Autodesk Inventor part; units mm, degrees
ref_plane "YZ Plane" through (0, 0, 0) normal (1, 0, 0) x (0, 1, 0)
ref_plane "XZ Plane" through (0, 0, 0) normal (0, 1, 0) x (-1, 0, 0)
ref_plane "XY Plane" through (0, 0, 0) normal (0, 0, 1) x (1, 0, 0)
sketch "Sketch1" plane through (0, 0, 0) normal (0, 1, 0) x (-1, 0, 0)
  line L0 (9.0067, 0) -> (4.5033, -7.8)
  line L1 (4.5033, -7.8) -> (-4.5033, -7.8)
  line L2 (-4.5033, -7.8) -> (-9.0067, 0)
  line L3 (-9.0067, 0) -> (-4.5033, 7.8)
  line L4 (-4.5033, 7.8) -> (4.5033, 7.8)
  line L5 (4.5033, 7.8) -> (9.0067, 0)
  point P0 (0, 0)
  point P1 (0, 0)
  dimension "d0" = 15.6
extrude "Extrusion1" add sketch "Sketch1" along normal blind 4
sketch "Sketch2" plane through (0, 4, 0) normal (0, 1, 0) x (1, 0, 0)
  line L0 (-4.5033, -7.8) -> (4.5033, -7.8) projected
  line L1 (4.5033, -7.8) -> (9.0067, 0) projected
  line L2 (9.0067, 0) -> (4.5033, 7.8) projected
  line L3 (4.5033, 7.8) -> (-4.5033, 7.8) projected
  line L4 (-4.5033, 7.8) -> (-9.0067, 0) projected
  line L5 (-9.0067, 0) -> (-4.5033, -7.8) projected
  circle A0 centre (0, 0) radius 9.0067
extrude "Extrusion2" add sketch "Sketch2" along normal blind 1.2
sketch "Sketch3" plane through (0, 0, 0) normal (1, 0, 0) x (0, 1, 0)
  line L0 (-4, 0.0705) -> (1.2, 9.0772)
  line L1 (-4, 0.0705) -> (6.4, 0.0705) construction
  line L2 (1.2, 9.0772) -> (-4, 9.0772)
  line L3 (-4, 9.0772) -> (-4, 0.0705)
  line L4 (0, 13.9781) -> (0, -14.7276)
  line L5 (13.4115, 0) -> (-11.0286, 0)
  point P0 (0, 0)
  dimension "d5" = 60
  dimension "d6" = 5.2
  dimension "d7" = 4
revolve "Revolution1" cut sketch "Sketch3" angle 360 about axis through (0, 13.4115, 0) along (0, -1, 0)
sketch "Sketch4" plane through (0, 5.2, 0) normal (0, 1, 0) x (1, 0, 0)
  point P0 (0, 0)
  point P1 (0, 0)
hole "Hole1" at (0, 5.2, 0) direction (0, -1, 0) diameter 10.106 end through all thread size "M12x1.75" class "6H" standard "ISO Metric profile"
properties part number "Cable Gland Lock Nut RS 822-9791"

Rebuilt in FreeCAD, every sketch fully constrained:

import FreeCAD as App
import Part
import Sketcher
Q = App.Units.Quantity


def add_polygon(sketch, points):
    """Adds a closed chain of lines whose ends are joined by coincident constraints."""
    first, n = sketch.GeometryCount, len(points)
    for a, b in zip(points, points[1:] + points[:1]):
        sketch.addGeometry(Part.LineSegment(App.Vector(*a, 0), App.Vector(*b, 0)), False)
    for i in range(n):
        sketch.addConstraint(Sketcher.Constraint("Coincident", first + i, 2, first + (i + 1) % n, 1))

doc = App.newDocument("Part")
body = doc.addObject("PartDesign::Body", "Body")

# Sketch on XZ plane
sketch1 = body.newObject("Sketcher::SketchObject", "Sketch")
sketch1.AttachmentSupport = (doc.getObject("XZ_Plane"), [""])
sketch1.MapMode = "FlatFace"
add_polygon(sketch1, [(-4.5033, -7.8), (-9.0067, 0), (-4.5033, 7.8), (4.5033, 7.8), (9.0067, 0), (4.5033, -7.8)])  # lines 0-5
sketch1.addConstraint([
    Sketcher.Constraint("Horizontal", 2),
    Sketcher.Constraint("Horizontal", 5),
    Sketcher.Constraint("Symmetric", 0, 2, 3, 2, -1, 1),
    Sketcher.Constraint("Symmetric", 1, 2, 4, 2, -1, 1),
    Sketcher.Constraint("PointOnObject", 0, 2, -1),
    Sketcher.Constraint("Parallel", 0, 3),
    Sketcher.Constraint("Vertical", 2, 2, 4, 2),
    Sketcher.Constraint("DistanceY", 4, 2, 2, 2, 15.6),
    Sketcher.Constraint("Angle", 0, Q("120.0004 deg")),
    Sketcher.Constraint("DistanceX", 0, 2, 2, 2, 13.51),
])
pad1 = body.newObject("PartDesign::Pad", "Pad")
pad1.Profile = sketch1
pad1.Length = 4
pad1.Reversed = True

# Sketch on XZ plane
sketch2 = body.newObject("Sketcher::SketchObject", "Sketch001")
sketch2.AttachmentSupport = (doc.getObject("XZ_Plane"), [""])
sketch2.MapMode = "FlatFace"
sketch2.AttachmentOffset = App.Placement(App.Vector(0, 0, -4), App.Rotation())
sketch2.addGeometry(Part.Circle(App.Vector(0, 0, 0), App.Vector(0, 0, 1), 9.0067), False)
sketch2.addConstraint([
    Sketcher.Constraint("Coincident", 0, 3, -1, 1),
    Sketcher.Constraint("Diameter", 0, 18.0134),
])
pad2 = body.newObject("PartDesign::Pad", "Pad001")
pad2.Profile = sketch2
pad2.Length = 1.2
pad2.Reversed = True

# Sketch on YZ plane
sketch3 = body.newObject("Sketcher::SketchObject", "Sketch002")
sketch3.AttachmentSupport = (doc.getObject("YZ_Plane"), [""])
sketch3.MapMode = "FlatFace"
add_polygon(sketch3, [(-4, 9.0772), (-4, 0.0705), (1.2, 9.0772)])  # lines 0-2
sketch3.addConstraint([
    Sketcher.Constraint("Vertical", 0),
    Sketcher.Constraint("Horizontal", 2),
    Sketcher.Constraint("Angle", 1, Q("60 deg")),
    Sketcher.Constraint("DistanceX", 2, 2, 2, 1, 5.2),
    Sketcher.Constraint("DistanceX", 0, 2, -1, 1, 4.0),
    Sketcher.Constraint("DistanceY", -1, 1, 0, 2, 0.0705),
])
groove = body.newObject("PartDesign::Groove", "Groove")
groove.Profile = sketch3
groove.ReferenceAxis = (sketch3, ["H_Axis"])
groove.Angle = 360

# Sketch on XZ plane
sketch4 = body.newObject("Sketcher::SketchObject", "Sketch003")
sketch4.AttachmentSupport = (doc.getObject("XZ_Plane"), [""])
sketch4.MapMode = "FlatFace"
sketch4.AttachmentOffset = App.Placement(App.Vector(0, 0, -5.2), App.Rotation())
sketch4.addGeometry(Part.Circle(App.Vector(0, 0, 0), App.Vector(0, 0, 1), 5.053), False)
sketch4.addConstraint([
    Sketcher.Constraint("Coincident", 0, 3, -1, 1),
    Sketcher.Constraint("Diameter", 0, 10.106),
])
doc.recompute()
hole = body.newObject("PartDesign::Hole", "Hole")
hole.Profile = sketch4
hole.ThreadType = "None"
hole.Diameter = 10.106
hole.DepthType = "ThroughAll"
hole.Reversed = True

doc.recompute()
